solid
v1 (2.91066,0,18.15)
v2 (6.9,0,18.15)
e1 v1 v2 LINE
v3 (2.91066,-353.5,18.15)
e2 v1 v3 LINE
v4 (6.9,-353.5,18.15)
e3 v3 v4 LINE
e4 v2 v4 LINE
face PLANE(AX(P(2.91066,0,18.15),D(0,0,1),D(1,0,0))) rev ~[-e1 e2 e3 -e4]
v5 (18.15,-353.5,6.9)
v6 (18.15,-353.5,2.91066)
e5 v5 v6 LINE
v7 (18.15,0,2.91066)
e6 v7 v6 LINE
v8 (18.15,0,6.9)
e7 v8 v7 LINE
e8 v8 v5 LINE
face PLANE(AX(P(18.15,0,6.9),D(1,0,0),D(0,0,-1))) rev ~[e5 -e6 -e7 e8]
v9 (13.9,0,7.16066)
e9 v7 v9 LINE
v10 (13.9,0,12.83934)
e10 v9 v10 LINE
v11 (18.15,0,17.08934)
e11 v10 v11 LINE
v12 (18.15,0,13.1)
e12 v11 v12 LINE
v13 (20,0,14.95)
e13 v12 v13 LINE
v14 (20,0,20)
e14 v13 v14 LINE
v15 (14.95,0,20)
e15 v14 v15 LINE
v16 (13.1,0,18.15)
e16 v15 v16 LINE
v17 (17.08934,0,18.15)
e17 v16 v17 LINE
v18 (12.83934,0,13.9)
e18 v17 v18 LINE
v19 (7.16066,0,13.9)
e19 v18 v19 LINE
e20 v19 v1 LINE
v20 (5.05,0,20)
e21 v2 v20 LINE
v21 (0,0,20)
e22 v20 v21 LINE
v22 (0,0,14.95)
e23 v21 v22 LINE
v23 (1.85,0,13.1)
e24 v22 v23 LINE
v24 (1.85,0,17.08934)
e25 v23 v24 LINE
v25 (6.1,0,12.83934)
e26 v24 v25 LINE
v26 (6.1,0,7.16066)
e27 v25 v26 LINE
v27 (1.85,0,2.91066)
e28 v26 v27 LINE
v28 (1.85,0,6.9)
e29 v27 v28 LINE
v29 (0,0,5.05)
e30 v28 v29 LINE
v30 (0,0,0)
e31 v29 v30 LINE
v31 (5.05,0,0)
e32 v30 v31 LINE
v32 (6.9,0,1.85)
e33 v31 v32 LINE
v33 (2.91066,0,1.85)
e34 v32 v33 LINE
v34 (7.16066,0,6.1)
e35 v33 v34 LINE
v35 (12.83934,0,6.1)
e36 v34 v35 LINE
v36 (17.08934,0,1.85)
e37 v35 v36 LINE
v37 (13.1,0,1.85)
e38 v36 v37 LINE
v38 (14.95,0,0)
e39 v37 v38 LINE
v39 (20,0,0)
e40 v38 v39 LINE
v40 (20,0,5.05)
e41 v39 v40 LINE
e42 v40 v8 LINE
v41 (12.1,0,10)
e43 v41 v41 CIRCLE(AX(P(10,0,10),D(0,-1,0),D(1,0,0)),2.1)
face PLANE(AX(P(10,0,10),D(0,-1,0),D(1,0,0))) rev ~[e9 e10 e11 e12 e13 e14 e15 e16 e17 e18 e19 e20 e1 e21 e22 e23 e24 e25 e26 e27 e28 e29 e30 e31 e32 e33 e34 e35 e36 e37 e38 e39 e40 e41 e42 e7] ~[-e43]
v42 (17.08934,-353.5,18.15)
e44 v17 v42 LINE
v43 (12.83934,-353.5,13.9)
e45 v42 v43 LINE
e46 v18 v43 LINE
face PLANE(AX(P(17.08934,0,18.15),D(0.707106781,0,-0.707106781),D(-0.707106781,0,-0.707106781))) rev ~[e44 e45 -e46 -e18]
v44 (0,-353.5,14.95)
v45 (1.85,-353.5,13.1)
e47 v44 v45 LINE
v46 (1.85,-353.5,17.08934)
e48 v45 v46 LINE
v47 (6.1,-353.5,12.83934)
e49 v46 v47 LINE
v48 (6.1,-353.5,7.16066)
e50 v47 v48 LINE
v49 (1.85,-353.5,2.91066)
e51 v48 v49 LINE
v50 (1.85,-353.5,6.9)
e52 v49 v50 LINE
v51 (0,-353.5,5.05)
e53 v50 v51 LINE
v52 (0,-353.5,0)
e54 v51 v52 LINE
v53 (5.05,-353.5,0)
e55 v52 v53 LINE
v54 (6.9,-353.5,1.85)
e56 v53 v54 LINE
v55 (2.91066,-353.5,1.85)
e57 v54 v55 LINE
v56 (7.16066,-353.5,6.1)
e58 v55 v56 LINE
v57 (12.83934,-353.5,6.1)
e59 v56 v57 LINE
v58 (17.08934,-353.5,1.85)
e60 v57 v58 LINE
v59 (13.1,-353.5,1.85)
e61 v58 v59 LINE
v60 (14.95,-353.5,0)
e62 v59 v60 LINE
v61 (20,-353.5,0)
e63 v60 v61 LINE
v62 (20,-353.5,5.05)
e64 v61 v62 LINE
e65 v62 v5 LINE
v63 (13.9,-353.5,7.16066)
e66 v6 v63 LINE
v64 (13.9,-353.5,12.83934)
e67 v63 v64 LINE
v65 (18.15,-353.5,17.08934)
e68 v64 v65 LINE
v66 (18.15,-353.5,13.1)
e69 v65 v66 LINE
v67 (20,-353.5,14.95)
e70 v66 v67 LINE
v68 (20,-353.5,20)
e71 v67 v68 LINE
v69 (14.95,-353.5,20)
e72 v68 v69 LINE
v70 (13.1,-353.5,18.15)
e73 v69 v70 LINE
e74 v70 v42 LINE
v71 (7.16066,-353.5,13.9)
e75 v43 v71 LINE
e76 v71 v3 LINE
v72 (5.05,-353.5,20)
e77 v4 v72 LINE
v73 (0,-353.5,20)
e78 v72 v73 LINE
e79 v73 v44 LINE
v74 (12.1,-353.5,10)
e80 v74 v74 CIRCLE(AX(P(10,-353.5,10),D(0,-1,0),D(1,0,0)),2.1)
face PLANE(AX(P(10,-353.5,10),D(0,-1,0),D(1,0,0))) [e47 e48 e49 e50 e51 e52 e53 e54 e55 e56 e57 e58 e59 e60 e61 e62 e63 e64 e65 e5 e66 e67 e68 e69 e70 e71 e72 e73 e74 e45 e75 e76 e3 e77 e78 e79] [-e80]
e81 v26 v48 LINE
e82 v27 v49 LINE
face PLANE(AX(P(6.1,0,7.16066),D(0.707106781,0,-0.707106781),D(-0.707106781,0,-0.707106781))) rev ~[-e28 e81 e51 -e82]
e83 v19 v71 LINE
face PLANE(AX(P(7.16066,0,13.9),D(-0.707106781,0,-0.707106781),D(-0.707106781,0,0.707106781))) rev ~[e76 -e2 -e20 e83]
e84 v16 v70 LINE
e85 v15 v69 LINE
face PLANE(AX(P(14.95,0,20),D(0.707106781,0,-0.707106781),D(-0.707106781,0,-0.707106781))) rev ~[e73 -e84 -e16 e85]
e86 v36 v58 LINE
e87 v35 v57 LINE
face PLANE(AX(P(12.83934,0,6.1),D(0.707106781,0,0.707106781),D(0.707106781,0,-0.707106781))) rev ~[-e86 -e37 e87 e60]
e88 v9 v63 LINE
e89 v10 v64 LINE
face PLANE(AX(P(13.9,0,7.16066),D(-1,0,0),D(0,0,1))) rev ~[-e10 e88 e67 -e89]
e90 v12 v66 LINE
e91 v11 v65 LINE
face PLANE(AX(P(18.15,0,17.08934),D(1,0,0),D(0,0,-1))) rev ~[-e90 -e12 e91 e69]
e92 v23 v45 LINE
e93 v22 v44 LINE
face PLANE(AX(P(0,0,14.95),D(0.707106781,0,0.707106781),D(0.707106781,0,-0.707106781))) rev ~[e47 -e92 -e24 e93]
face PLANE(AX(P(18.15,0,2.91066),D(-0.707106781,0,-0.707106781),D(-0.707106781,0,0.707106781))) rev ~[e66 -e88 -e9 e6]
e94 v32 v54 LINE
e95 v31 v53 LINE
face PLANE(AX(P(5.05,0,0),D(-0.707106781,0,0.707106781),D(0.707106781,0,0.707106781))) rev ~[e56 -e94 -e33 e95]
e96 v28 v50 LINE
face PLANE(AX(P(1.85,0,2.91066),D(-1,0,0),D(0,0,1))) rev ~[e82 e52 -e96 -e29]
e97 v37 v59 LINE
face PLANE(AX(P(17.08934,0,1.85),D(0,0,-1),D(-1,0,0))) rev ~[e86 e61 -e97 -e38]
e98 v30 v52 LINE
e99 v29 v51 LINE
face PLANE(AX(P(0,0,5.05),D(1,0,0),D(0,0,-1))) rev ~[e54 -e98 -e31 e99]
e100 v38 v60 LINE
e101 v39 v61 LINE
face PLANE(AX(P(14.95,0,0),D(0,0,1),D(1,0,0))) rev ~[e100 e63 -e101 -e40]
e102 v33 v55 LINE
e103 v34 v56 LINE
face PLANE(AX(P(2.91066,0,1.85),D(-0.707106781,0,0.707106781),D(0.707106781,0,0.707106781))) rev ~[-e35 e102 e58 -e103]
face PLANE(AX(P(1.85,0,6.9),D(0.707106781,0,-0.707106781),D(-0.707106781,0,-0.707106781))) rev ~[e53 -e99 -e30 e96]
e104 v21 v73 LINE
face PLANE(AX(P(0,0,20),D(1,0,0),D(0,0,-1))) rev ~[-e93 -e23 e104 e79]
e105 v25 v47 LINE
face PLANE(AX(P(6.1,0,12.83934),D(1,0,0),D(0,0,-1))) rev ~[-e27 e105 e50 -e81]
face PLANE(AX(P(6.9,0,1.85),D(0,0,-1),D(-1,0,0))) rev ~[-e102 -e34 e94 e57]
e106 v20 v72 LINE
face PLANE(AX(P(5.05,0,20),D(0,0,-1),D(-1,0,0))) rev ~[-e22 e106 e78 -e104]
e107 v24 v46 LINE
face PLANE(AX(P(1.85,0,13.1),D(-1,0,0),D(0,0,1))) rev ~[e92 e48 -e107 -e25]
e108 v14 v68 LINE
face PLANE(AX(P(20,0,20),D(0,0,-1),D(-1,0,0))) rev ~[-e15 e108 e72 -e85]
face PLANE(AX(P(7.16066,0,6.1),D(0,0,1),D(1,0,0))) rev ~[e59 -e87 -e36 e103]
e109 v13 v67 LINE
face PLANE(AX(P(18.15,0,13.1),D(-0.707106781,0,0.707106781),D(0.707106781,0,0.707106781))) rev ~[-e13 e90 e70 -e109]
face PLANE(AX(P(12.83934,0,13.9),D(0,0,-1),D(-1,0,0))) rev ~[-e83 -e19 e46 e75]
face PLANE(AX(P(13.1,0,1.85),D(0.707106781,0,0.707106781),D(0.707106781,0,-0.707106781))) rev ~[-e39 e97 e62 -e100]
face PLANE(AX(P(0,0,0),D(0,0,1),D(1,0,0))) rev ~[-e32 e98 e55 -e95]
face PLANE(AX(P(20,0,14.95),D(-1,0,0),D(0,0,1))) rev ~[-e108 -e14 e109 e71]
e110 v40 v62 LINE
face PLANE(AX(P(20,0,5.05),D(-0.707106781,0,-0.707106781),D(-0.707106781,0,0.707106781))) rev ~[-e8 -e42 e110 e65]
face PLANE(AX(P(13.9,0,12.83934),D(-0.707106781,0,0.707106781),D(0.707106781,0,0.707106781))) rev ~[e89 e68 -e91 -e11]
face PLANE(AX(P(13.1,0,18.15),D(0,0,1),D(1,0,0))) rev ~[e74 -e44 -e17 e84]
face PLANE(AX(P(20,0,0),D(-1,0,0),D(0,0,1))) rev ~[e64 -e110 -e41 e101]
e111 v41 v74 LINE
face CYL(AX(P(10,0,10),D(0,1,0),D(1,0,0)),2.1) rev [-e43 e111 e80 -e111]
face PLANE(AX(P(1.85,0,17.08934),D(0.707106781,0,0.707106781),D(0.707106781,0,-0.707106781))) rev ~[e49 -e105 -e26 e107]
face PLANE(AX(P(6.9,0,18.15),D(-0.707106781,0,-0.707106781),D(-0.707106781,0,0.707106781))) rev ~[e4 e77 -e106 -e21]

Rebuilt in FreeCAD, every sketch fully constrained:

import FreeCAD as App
import Part
import Sketcher
from FreeCAD import Vector


def add_polygon(sketch, points):
    """Adds a closed chain of lines whose ends are joined by coincident constraints."""
    first, n = sketch.GeometryCount, len(points)
    for a, b in zip(points, points[1:] + points[:1]):
        sketch.addGeometry(Part.LineSegment(App.Vector(*a, 0), App.Vector(*b, 0)), False)
    for i in range(n):
        sketch.addConstraint(Sketcher.Constraint("Coincident", first + i, 2, first + (i + 1) % n, 1))

doc = App.newDocument("Part")
params = doc.addObject("Spreadsheet::Sheet", "Params")
for row, (alias, value) in enumerate([
    ("sketch1_diameter", "4.2 mm"),
    ("sketch1_width", "5.05 mm"),
    ("pad1_length", "353.5 mm"),
], start=1):
    params.set(f"A{row}", alias)
    params.set(f"B{row}", "=" + value)
    params.setAlias(f"B{row}", alias)

body = doc.addObject("PartDesign::Body", "Body")

# Sketch on XZ plane
sketch1 = doc.addObject("Sketcher::SketchObject", "Sketch")
body.addObject(sketch1)
sketch1.AttachmentSupport = (doc.XZ_Plane, [""])
sketch1.MapMode = "FlatFace"
add_polygon(sketch1, [(0, 0), (5, 0), (6.9, 1.9), (2.9, 1.9), (7.2, 6.1), (12.8, 6.1), (17.1, 1.9), (13.1, 1.9), (14.9, 0), (20, 0), (20, 5), (18.1, 6.9), (18.1, 2.9), (13.9, 7.2), (13.9, 12.8), (18.1, 17.1), (18.1, 13.1), (20, 14.9), (20, 20), (14.9, 20), (13.1, 18.1), (17.1, 18.1), (12.8, 13.9), (7.2, 13.9), (2.9, 18.1), (6.9, 18.1), (5, 20), (0, 20), (0, 14.9), (1.9, 13.1), (1.9, 17.1), (6.1, 12.8), (6.1, 7.2), (1.9, 2.9), (1.9, 6.9), (0, 5)])  # lines 0-35
sketch1.addGeometry(Part.Circle(Vector(10, 10, 0), Vector(0, 0, 1), 2.1), False)  # 36
sketch1.addConstraint([
    Sketcher.Constraint("Horizontal", 0),
    Sketcher.Constraint("Horizontal", 2),
    Sketcher.Constraint("Horizontal", 4),
    Sketcher.Constraint("Horizontal", 6),
    Sketcher.Constraint("Horizontal", 8),
    Sketcher.Constraint("Vertical", 9),
    Sketcher.Constraint("Vertical", 11),
    Sketcher.Constraint("Vertical", 13),
    Sketcher.Constraint("Vertical", 15),
    Sketcher.Constraint("Vertical", 17),
    Sketcher.Constraint("Horizontal", 18),
    Sketcher.Constraint("Horizontal", 20),
    Sketcher.Constraint("Horizontal", 22),
    Sketcher.Constraint("Horizontal", 24),
    Sketcher.Constraint("Horizontal", 26),
    Sketcher.Constraint("Vertical", 27),
    Sketcher.Constraint("Vertical", 29),
    Sketcher.Constraint("Vertical", 31),
    Sketcher.Constraint("Vertical", 33),
    Sketcher.Constraint("Vertical", 35),
    Sketcher.Constraint("Coincident", 35, 2, -1, 1),
    Sketcher.Constraint("PointOnObject", 7, 2, -1),
    Sketcher.Constraint("PointOnObject", 26, 2, -2),
    Sketcher.Constraint("Parallel", 1, 3),
    Sketcher.Constraint("Perpendicular", 3, 5),
    Sketcher.Constraint("Parallel", 5, 7),
    Sketcher.Constraint("Parallel", 7, 10),
    Sketcher.Constraint("Parallel", 10, 12),
    Sketcher.Constraint("Perpendicular", 12, 14),
    Sketcher.Constraint("Parallel", 14, 16),
    Sketcher.Constraint("Parallel", 16, 19),
    Sketcher.Constraint("Parallel", 19, 21),
    Sketcher.Constraint("Perpendicular", 21, 23),
    Sketcher.Constraint("Parallel", 23, 25),
    Sketcher.Constraint("Parallel", 25, 28),
    Sketcher.Constraint("Parallel", 28, 30),
    Sketcher.Constraint("Perpendicular", 30, 32),
    Sketcher.Constraint("Parallel", 32, 34),
    Sketcher.Constraint("Horizontal", 2, 2, 5, 2),
    Sketcher.Constraint("Horizontal", 20, 2, 23, 2),
    Sketcher.Constraint("Horizontal", 18, 2, 25, 2),
    Sketcher.Constraint("Horizontal", 16, 2, 27, 2),
    Sketcher.Constraint("Horizontal", 15, 2, 28, 2),
    Sketcher.Constraint("Horizontal", 14, 2, 29, 2),
    Sketcher.Constraint("Horizontal", 13, 2, 30, 2),
    Sketcher.Constraint("Horizontal", 12, 2, 31, 2),
    Sketcher.Constraint("Horizontal", 11, 2, 32, 2),
    Sketcher.Constraint("Horizontal", 10, 2, 33, 2),
    Sketcher.Constraint("Horizontal", 9, 2, 34, 2),
    Sketcher.Constraint("Vertical", 11, 2, 14, 2),
    Sketcher.Constraint("Vertical", 9, 2, 16, 2),
    Sketcher.Constraint("Vertical", 7, 2, 18, 2),
    Sketcher.Constraint("Vertical", 6, 2, 19, 2),
    Sketcher.Constraint("Vertical", 5, 2, 20, 2),
    Sketcher.Constraint("Vertical", 4, 2, 21, 2),
    Sketcher.Constraint("Vertical", 3, 2, 22, 2),
    Sketcher.Constraint("Vertical", 1, 2, 24, 2),
    Sketcher.Constraint("Equal", 2, 6),
    Sketcher.Constraint("Equal", 0, 8),
    Sketcher.Constraint("Equal", 26, 9),
    Sketcher.Constraint("Equal", 24, 11),
    Sketcher.Constraint("Equal", 22, 13),
    Sketcher.Constraint("Equal", 11, 15),
    Sketcher.Constraint("Equal", 9, 17),
    Sketcher.Constraint("Equal", 7, 10),
    Sketcher.Constraint("Equal", 5, 12),
    Sketcher.Constraint("Diameter", 36, 4.2),
    Sketcher.Constraint("DistanceX", -1, 1, 36, 3, 10.0),
    Sketcher.Constraint("DistanceY", -1, 1, 36, 3, 10.0),
    Sketcher.Constraint("DistanceX", -1, 1, 8, 2, 20.0),
    Sketcher.Constraint("DistanceX", 0, 1, 0, 2, 5.05),
    Sketcher.Constraint("DistanceX", -1, 1, 1, 2, 6.9),
    Sketcher.Constraint("DistanceY", -1, 1, 3, 2, 6.1),
    Sketcher.Constraint("DistanceX", 2, 2, 2, 1, 3.98934),
])
sketch1.setExpression("Constraints[102]", "Params.sketch1_diameter")
sketch1.setExpression("Constraints[106]", "Params.sketch1_width")
pad1 = doc.addObject("PartDesign::Pad", "Pad")
body.addObject(pad1)
pad1.Profile = sketch1
pad1.setExpression("Length", "Params.pad1_length")

doc.recompute()
